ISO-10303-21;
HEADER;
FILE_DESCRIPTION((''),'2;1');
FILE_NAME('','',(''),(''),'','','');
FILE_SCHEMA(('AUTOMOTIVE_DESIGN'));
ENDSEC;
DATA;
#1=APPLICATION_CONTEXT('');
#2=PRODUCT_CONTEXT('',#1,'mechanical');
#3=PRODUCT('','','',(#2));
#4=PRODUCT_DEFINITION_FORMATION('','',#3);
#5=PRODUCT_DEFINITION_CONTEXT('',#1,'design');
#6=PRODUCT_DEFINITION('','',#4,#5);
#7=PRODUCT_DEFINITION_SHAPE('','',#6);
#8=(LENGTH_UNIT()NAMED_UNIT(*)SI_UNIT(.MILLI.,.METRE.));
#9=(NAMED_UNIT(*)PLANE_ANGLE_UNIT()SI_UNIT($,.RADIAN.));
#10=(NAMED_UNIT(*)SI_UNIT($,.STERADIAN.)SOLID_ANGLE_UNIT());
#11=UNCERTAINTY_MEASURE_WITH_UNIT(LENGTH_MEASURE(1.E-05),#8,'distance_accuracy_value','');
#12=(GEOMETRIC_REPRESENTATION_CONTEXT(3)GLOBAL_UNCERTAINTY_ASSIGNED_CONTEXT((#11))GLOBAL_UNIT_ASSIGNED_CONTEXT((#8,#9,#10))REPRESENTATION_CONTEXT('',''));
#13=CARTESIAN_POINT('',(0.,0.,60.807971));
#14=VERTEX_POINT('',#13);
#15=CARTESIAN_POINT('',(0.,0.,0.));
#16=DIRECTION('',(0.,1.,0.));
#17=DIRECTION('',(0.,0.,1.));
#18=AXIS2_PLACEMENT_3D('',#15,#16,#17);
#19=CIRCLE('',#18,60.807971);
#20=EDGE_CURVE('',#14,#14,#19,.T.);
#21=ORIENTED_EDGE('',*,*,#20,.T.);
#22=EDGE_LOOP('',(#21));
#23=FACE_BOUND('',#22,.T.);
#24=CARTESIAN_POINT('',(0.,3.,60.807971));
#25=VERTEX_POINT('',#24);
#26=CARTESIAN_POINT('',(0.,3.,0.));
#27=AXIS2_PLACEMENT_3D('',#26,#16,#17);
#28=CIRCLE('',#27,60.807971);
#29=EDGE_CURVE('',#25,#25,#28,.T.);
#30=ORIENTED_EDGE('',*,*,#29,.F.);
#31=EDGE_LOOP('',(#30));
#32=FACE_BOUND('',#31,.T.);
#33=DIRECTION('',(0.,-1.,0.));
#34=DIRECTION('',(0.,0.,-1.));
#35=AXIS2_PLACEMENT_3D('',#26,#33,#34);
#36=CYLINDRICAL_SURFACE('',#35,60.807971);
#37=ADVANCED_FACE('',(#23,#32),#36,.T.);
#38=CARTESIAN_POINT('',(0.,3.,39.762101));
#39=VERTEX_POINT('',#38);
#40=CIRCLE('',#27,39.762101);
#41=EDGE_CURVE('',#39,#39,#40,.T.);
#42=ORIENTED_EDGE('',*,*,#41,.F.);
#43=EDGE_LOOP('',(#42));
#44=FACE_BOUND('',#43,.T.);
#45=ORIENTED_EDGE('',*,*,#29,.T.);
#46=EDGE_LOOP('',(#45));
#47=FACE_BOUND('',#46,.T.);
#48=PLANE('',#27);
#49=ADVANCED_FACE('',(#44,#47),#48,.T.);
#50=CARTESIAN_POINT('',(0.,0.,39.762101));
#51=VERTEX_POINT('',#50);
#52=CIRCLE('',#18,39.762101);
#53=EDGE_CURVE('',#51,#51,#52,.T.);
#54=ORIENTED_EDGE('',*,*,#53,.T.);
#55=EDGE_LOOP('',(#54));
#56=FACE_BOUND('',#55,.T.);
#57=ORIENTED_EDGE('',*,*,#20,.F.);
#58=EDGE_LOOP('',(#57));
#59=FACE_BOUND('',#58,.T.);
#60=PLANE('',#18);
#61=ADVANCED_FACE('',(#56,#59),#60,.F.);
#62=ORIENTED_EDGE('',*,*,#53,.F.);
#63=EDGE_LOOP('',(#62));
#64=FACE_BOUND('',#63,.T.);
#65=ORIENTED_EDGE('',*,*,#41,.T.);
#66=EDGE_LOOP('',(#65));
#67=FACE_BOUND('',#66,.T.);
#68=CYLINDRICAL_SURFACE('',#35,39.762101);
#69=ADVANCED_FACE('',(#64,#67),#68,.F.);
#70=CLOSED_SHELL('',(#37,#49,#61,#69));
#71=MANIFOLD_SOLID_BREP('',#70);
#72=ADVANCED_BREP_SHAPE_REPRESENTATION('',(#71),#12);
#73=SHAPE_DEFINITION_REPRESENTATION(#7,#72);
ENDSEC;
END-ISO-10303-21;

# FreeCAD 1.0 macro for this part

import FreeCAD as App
import Part
import Sketcher

V = App.Vector

doc = App.newDocument("Part")
params = doc.addObject("Spreadsheet::Sheet", "Params")
for row, (alias, value) in enumerate([
    ("pad1_length", "3 mm"),
], start=1):
    params.set(f"A{row}", alias)
    params.set(f"B{row}", "=" + value)
    params.setAlias(f"B{row}", alias)

body = doc.addObject("PartDesign::Body", "Body")

# Sketch on XZ plane
sketch1 = body.newObject("Sketcher::SketchObject", "Sketch")
sketch1.AttachmentSupport = (doc.getObject("XZ_Plane"), [""])
sketch1.MapMode = "FlatFace"
sketch1.addGeometry(Part.Circle(V(0, 0, 0), V(0, 0, 1), 60.807971), False)
sketch1.addGeometry(Part.Circle(V(0, 0, 0), V(0, 0, 1), 39.762101), False)
sketch1.addConstraint(Sketcher.Constraint("Coincident", 0, 3, -1, 1))
sketch1.addConstraint(Sketcher.Constraint("Coincident", 1, 3, -1, 1))
sketch1.addConstraint(Sketcher.Constraint("Diameter", 1, 79.524201))
sketch1.addConstraint(Sketcher.Constraint("Diameter", 0, 121.615942))
pad1 = body.newObject("PartDesign::Pad", "Pad")
pad1.Profile = sketch1
pad1.setExpression("Length", "Params.pad1_length")
pad1.Reversed = True

doc.recompute()
